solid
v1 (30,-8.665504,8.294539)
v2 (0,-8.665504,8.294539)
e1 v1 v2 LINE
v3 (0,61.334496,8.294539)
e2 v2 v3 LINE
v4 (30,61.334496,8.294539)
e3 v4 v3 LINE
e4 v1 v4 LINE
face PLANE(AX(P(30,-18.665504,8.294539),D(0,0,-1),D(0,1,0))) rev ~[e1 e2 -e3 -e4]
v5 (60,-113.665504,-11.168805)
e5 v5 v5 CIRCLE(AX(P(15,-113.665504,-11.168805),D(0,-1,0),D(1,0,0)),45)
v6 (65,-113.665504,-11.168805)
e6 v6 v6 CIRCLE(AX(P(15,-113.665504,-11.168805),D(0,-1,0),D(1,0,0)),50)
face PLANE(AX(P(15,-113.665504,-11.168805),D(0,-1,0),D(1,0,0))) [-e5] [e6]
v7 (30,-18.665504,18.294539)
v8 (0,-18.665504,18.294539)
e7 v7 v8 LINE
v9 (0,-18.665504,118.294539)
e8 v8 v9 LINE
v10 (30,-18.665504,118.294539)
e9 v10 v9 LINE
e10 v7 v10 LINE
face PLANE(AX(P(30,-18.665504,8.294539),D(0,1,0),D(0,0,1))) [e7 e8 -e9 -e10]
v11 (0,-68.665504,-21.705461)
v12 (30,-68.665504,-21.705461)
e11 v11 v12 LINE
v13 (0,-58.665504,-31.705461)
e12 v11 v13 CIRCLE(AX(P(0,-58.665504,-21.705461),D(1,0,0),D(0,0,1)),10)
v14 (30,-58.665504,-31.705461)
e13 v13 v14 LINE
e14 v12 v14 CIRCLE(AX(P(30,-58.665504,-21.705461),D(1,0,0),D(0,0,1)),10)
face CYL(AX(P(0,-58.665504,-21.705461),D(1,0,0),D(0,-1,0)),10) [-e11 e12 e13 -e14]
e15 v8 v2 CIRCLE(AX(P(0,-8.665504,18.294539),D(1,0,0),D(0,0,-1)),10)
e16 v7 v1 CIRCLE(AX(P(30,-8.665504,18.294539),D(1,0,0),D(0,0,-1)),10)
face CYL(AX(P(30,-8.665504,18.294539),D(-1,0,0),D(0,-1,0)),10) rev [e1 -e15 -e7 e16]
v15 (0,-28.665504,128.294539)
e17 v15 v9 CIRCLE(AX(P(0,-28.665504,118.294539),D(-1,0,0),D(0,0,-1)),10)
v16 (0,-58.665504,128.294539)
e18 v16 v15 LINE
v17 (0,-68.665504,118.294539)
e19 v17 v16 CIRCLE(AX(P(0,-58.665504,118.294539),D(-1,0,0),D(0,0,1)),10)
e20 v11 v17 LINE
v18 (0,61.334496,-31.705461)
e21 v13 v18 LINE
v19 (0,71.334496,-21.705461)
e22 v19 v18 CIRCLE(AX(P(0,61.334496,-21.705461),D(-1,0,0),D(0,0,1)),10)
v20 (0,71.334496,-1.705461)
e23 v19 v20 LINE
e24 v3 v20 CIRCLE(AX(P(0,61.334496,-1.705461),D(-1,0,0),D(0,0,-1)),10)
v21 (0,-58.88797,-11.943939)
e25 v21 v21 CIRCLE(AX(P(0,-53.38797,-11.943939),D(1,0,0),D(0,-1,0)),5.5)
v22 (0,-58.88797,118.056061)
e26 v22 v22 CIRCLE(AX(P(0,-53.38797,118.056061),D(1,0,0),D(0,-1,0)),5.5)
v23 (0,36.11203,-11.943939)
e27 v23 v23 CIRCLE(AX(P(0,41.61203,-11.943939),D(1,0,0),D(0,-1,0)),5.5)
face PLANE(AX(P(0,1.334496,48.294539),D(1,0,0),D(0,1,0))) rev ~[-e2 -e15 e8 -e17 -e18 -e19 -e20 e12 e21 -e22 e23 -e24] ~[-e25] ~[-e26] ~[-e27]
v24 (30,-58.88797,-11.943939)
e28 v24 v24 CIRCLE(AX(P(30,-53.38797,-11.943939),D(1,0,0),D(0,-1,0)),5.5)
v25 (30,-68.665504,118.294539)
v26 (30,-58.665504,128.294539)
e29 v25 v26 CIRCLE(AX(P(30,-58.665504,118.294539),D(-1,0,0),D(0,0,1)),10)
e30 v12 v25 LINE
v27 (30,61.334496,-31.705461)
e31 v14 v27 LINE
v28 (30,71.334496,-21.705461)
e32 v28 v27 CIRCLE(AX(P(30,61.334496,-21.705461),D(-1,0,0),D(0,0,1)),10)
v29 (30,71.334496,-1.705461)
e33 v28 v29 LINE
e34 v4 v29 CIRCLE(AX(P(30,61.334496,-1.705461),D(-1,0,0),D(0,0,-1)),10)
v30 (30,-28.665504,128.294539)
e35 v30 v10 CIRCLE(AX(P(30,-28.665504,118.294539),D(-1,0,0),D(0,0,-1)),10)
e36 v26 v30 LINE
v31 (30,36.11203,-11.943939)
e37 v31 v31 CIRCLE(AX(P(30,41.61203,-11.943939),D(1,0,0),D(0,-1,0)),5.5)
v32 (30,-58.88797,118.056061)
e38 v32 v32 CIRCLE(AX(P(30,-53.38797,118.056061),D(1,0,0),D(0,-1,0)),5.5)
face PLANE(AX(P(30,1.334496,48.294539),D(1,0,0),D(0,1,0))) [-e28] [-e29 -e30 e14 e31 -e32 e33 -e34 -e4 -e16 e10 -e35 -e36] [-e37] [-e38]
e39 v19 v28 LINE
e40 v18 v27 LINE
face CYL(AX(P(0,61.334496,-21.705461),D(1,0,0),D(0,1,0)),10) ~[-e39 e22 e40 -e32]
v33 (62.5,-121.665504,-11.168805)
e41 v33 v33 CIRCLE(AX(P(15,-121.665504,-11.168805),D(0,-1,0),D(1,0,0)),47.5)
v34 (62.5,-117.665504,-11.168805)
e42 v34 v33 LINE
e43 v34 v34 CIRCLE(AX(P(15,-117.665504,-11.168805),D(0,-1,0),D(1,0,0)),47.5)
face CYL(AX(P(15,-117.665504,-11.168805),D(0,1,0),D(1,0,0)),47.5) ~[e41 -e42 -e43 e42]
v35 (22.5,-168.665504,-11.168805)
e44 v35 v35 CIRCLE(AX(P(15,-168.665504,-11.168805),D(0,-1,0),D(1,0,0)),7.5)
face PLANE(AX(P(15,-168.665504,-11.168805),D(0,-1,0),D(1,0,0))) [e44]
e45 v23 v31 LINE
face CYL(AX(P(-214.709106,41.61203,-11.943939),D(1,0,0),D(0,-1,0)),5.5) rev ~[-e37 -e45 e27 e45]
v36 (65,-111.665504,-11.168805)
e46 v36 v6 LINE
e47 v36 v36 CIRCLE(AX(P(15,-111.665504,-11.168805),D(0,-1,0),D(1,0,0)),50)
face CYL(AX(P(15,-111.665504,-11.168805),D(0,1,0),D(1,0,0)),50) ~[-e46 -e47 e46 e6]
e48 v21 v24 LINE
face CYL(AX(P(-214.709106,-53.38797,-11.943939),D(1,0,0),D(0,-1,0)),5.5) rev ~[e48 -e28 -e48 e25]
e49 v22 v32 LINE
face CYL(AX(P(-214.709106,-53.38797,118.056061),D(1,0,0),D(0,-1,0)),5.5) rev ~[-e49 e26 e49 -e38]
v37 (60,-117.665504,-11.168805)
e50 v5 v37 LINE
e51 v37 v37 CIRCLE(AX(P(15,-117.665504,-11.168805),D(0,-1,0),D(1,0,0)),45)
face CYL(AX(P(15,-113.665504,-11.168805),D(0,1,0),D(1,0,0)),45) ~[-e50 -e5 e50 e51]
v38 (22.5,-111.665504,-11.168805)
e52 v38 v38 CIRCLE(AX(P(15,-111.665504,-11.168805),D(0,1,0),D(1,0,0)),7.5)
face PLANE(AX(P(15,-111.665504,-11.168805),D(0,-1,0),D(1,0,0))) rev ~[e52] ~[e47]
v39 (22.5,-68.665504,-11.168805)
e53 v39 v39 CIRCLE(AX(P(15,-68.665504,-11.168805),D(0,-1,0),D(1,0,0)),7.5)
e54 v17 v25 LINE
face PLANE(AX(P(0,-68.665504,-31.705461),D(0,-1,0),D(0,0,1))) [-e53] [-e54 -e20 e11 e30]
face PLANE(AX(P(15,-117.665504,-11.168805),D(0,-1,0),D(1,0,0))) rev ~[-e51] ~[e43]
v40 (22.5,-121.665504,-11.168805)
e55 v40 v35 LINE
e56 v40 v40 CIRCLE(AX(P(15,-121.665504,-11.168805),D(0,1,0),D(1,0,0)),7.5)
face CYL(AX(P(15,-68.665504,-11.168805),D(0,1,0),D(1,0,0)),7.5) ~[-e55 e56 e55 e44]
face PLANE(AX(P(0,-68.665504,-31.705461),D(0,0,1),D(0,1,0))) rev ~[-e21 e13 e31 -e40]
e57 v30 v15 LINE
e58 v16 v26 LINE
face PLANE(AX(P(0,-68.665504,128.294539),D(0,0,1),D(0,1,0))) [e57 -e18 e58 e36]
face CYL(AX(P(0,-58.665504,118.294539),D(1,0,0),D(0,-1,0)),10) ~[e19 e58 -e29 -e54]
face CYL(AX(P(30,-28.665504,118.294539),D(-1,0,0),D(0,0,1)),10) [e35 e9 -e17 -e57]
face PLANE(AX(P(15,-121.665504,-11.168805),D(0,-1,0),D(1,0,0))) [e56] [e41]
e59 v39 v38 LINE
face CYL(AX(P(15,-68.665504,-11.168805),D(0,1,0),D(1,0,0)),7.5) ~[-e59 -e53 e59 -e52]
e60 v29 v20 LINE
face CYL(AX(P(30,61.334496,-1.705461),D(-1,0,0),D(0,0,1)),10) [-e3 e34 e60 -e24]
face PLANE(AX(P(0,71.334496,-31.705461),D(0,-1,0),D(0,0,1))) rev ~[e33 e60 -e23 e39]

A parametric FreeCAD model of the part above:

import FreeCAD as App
import Part
import Sketcher
from FreeCAD import Vector


def edges_at(feature, points):
    """Names of the edges that pass closest to the given points."""
    edges = feature.Shape.Edges
    near = lambda p: min(range(len(edges)), key=lambda i: edges[i].distToShape(Part.Vertex(*p))[0])
    return sorted({f"Edge{near(p) + 1}" for p in points})


def add_polygon(sketch, points):
    """Adds a closed chain of lines whose ends are joined by coincident constraints."""
    first, n = sketch.GeometryCount, len(points)
    for a, b in zip(points, points[1:] + points[:1]):
        sketch.addGeometry(Part.LineSegment(App.Vector(*a, 0), App.Vector(*b, 0)), False)
    for i in range(n):
        sketch.addConstraint(Sketcher.Constraint("Coincident", first + i, 2, first + (i + 1) % n, 1))

doc = App.newDocument("Part")
body = doc.addObject("PartDesign::Body", "Body")

sketch1 = body.newObject("Sketcher::SketchObject", "Sketch")
sketch1.AttachmentSupport = (doc.getObject("YZ_Plane"), [""])
sketch1.MapMode = "FlatFace"
add_polygon(sketch1, [(-69, 128), (-69, -32), (71, -32), (71, 128)])
sketch1.addConstraint(Sketcher.Constraint("Vertical", 0))
sketch1.addConstraint(Sketcher.Constraint("Horizontal", 1))
sketch1.addConstraint(Sketcher.Constraint("Vertical", 2))
sketch1.addConstraint(Sketcher.Constraint("Horizontal", 3))
sketch1.addConstraint(Sketcher.Constraint("DistanceX", 1, 1, 1, 2, 140.0))
sketch1.addConstraint(Sketcher.Constraint("DistanceY", 0, 2, 0, 1, 160.0))
sketch1.addConstraint(Sketcher.Constraint("DistanceY", 0, 2, -1, 1, 31.705461))
sketch1.addConstraint(Sketcher.Constraint("DistanceX", 0, 2, -1, 1, 68.665504))
pad1 = body.newObject("PartDesign::Pad", "Pad")
pad1.Profile = sketch1
pad1.Length = 30
doc.recompute()

fillet = body.newObject("PartDesign::Fillet", "Fillet")
fillet.Base = (pad1, edges_at(pad1, [(15, -68.666, 128.295), (15, -68.666, -31.705)]))
fillet.Radius = 10

sketch2 = body.newObject("Sketcher::SketchObject", "Sketch001")
sketch2.AttachmentSupport = (doc.getObject("YZ_Plane"), [""])
sketch2.MapMode = "FlatFace"
sketch2.AttachmentOffset = App.Placement(Vector(0, 0, 30), App.Rotation())
add_polygon(sketch2, [(-19, 128), (-19, 8), (71, 8), (71, 128)])
sketch2.addConstraint(Sketcher.Constraint("Vertical", 0))
sketch2.addConstraint(Sketcher.Constraint("Horizontal", 1))
sketch2.addConstraint(Sketcher.Constraint("Vertical", 2))
sketch2.addConstraint(Sketcher.Constraint("Horizontal", 3))
sketch2.addConstraint(Sketcher.Constraint("DistanceX", 1, 1, 1, 2, 90.0))
sketch2.addConstraint(Sketcher.Constraint("DistanceY", 0, 2, 0, 1, 120.0))
sketch2.addConstraint(Sketcher.Constraint("DistanceY", -1, 1, 0, 2, 8.294539))
sketch2.addConstraint(Sketcher.Constraint("DistanceX", 0, 2, -1, 1, 18.665504))
pocket1 = body.newObject("PartDesign::Pocket", "Pocket")
pocket1.Profile = sketch2
pocket1.Type = "ThroughAll"
doc.recompute()

fillet2 = body.newObject("PartDesign::Fillet", "Fillet001")
fillet2.Base = (pocket1, edges_at(pocket1, [
    (15, -18.666, 128.295),
    (15, -18.666, 8.295),
    (15, 71.334, 8.295),
    (15, 71.334, -31.705),
]))
fillet2.Radius = 10

sketch3 = body.newObject("Sketcher::SketchObject", "Sketch002")
sketch3.AttachmentSupport = (doc.getObject("YZ_Plane"), [""])
sketch3.MapMode = "FlatFace"
sketch3.addGeometry(Part.Circle(Vector(-53, 118, 0), Vector(0, 0, 1), 6), False)
sketch3.addGeometry(Part.Circle(Vector(-53, -12, 0), Vector(0, 0, 1), 6), False)
sketch3.addGeometry(Part.Circle(Vector(42, -12, 0), Vector(0, 0, 1), 6), False)
sketch3.addConstraint(Sketcher.Constraint("Equal", 0, 1))
sketch3.addConstraint(Sketcher.Constraint("Equal", 1, 2))
sketch3.addConstraint(Sketcher.Constraint("Horizontal", 1, 3, 2, 3))
sketch3.addConstraint(Sketcher.Constraint("Vertical", 0, 3, 1, 3))
sketch3.addConstraint(Sketcher.Constraint("Diameter", 0, 11.0))
sketch3.addConstraint(Sketcher.Constraint("DistanceY", 1, 3, 0, 3, 130.0))
sketch3.addConstraint(Sketcher.Constraint("DistanceX", 1, 3, 2, 3, 95.0))
sketch3.addConstraint(Sketcher.Constraint("DistanceX", 0, 3, -1, 1, 53.38797))
sketch3.addConstraint(Sketcher.Constraint("DistanceY", -1, 1, 0, 3, 118.056061))
doc.recompute()
hole = body.newObject("PartDesign::Hole", "Hole")
hole.Profile = sketch3
hole.ThreadType = "None"
hole.Diameter = 11
hole.DepthType = "ThroughAll"
hole.Reversed = True

sketch4 = body.newObject("Sketcher::SketchObject", "Sketch003")
sketch4.AttachmentSupport = (doc.getObject("XZ_Plane"), [""])
sketch4.MapMode = "FlatFace"
sketch4.AttachmentOffset = App.Placement(Vector(0, 0, 68.665504), App.Rotation())
sketch4.addGeometry(Part.Circle(Vector(15, -11, 0), Vector(0, 0, 1), 8), False)
sketch4.addConstraint(Sketcher.Constraint("Diameter", 0, 15.0))
sketch4.addConstraint(Sketcher.Constraint("DistanceX", -1, 1, 0, 3, 15.0))
sketch4.addConstraint(Sketcher.Constraint("DistanceY", 0, 3, -1, 1, 11.168805))
pad2 = body.newObject("PartDesign::Pad", "Pad001")
pad2.Profile = sketch4
pad2.Length = 100

sketch5 = body.newObject("Sketcher::SketchObject", "Sketch004")
sketch5.AttachmentSupport = (doc.getObject("XZ_Plane"), [""])
sketch5.MapMode = "FlatFace"
sketch5.AttachmentOffset = App.Placement(Vector(0, 0, 111.665504), App.Rotation())
sketch5.addGeometry(Part.Circle(Vector(15, -11, 0), Vector(0, 0, 1), 50), False)
sketch5.addConstraint(Sketcher.Constraint("Diameter", 0, 100.0))
sketch5.addConstraint(Sketcher.Constraint("DistanceX", -1, 1, 0, 3, 15.0))
sketch5.addConstraint(Sketcher.Constraint("DistanceY", 0, 3, -1, 1, 11.168805))
pad3 = body.newObject("PartDesign::Pad", "Pad002")
pad3.Profile = sketch5
pad3.Length = 2

sketch6 = body.newObject("Sketcher::SketchObject", "Sketch005")
sketch6.AttachmentSupport = (doc.getObject("XZ_Plane"), [""])
sketch6.MapMode = "FlatFace"
sketch6.AttachmentOffset = App.Placement(Vector(0, 0, 113.665504), App.Rotation())
sketch6.addGeometry(Part.Circle(Vector(15, -11, 0), Vector(0, 0, 1), 45), False)
sketch6.addGeometry(Part.Circle(Vector(15, -11, 0), Vector(0, 0, 1), 8), False)
sketch6.addConstraint(Sketcher.Constraint("Coincident", 1, 3, 0, 3))
sketch6.addConstraint(Sketcher.Constraint("Diameter", 0, 90.0))
sketch6.addConstraint(Sketcher.Constraint("Diameter", 1, 15.0))
sketch6.addConstraint(Sketcher.Constraint("DistanceX", -1, 1, 0, 3, 15.0))
sketch6.addConstraint(Sketcher.Constraint("DistanceY", 0, 3, -1, 1, 11.168805))
pad4 = body.newObject("PartDesign::Pad", "Pad003")
pad4.Profile = sketch6
pad4.Length = 4

sketch7 = body.newObject("Sketcher::SketchObject", "Sketch006")
sketch7.AttachmentSupport = (doc.getObject("XZ_Plane"), [""])
sketch7.MapMode = "FlatFace"
sketch7.AttachmentOffset = App.Placement(Vector(0, 0, 117.665504), App.Rotation())
sketch7.addGeometry(Part.Circle(Vector(15, -11, 0), Vector(0, 0, 1), 48), False)
sketch7.addConstraint(Sketcher.Constraint("Diameter", 0, 95.0))
sketch7.addConstraint(Sketcher.Constraint("DistanceX", -1, 1, 0, 3, 15.0))
sketch7.addConstraint(Sketcher.Constraint("DistanceY", 0, 3, -1, 1, 11.168805))
pad5 = body.newObject("PartDesign::Pad", "Pad004")
pad5.Profile = sketch7
pad5.Length = 4

doc.recompute()
